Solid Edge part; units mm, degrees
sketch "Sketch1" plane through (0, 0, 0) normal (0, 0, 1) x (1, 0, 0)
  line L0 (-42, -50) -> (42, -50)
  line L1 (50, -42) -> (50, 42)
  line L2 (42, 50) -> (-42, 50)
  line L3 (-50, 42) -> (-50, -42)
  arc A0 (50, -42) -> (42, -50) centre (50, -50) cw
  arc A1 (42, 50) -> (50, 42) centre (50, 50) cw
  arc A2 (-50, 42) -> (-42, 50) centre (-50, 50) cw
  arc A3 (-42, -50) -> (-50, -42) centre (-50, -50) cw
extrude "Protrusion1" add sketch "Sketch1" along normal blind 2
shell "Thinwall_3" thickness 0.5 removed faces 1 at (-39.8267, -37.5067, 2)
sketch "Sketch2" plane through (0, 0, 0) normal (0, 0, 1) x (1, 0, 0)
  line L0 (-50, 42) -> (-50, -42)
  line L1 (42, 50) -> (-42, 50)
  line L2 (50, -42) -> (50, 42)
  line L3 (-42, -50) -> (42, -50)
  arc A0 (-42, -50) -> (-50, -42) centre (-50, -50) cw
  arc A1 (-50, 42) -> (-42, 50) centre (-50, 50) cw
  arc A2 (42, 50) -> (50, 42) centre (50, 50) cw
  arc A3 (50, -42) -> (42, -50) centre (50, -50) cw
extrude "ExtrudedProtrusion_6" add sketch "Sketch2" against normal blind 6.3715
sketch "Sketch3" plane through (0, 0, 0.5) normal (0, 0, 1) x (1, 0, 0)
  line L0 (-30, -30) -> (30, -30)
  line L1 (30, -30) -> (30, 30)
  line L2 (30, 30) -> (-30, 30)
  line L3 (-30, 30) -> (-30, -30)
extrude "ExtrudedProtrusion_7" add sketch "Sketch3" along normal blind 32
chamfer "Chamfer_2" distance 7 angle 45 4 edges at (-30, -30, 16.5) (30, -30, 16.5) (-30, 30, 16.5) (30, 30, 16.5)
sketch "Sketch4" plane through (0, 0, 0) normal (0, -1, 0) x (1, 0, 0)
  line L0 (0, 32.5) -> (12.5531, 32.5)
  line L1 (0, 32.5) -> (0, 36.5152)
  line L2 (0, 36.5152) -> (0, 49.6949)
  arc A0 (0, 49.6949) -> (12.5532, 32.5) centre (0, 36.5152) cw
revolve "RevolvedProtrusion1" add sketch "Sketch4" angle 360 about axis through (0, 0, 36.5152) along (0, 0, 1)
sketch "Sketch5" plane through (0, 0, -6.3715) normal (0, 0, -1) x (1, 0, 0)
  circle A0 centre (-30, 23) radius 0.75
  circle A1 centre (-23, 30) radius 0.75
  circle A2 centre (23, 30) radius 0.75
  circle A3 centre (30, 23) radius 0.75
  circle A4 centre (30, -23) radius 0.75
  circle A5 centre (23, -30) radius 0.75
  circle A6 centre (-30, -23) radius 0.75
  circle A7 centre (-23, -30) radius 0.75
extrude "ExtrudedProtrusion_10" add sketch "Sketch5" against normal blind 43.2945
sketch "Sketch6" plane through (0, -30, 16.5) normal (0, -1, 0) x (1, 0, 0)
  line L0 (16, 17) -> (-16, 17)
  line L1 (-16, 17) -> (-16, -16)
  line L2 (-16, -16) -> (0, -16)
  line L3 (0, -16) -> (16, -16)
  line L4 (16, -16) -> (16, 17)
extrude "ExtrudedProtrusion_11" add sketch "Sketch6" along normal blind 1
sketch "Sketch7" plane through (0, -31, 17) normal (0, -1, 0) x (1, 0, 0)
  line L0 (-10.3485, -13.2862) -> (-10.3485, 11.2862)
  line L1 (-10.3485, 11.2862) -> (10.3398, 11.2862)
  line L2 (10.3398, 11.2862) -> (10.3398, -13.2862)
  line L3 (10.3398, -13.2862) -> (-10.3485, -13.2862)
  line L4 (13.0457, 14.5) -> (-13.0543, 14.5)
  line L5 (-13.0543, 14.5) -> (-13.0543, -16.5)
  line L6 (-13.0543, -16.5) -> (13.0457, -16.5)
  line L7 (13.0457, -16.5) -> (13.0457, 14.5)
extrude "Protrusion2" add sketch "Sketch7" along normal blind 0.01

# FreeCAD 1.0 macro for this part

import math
import FreeCAD as App
import Part
import Sketcher

V = App.Vector


def edges_at(feature, points):
    """Names of the edges that pass closest to the given points."""
    edges = feature.Shape.Edges
    near = lambda p: min(range(len(edges)), key=lambda i: edges[i].distToShape(Part.Vertex(*p))[0])
    return sorted({f"Edge{near(p) + 1}" for p in points})


def faces_at(feature, points):
    """Names of the faces that lie closest to the given points."""
    faces = feature.Shape.Faces
    near = lambda p: min(range(len(faces)), key=lambda i: faces[i].distToShape(Part.Vertex(*p))[0])
    return sorted({f"Face{near(p) + 1}" for p in points})


def add_polygon(sketch, points):
    """Adds a closed chain of lines whose ends are joined by coincident constraints."""
    first, n = sketch.GeometryCount, len(points)
    for a, b in zip(points, points[1:] + points[:1]):
        sketch.addGeometry(Part.LineSegment(App.Vector(*a, 0), App.Vector(*b, 0)), False)
    for i in range(n):
        sketch.addConstraint(Sketcher.Constraint("Coincident", first + i, 2, first + (i + 1) % n, 1))

doc = App.newDocument("Part")
body = doc.addObject("PartDesign::Body", "Body")

sketch1 = doc.addObject("Sketcher::SketchObject", "Sketch")
body.addObject(sketch1)
sketch1.AttachmentSupport = (doc.XY_Plane, [""])
sketch1.MapMode = "FlatFace"
sketch1.addGeometry([
    Part.ArcOfCircle(Part.Circle(V(-50, -50, 0), V(0, 0, 1), 8), math.radians(90), math.radians(360)),
    Part.LineSegment(V(-42, -50, 0), V(42, -50, 0)),
    Part.ArcOfCircle(Part.Circle(V(50, -50, 0), V(0, 0, 1), 8), math.radians(180), math.radians(450)),
    Part.LineSegment(V(50, -42, 0), V(50, 42, 0)),
    Part.ArcOfCircle(Part.Circle(V(50, 50, 0), V(0, 0, 1), 8), math.radians(-90), math.radians(180)),
    Part.LineSegment(V(42, 50, 0), V(-42, 50, 0)),
    Part.ArcOfCircle(Part.Circle(V(-50, 50, 0), V(0, 0, 1), 8), math.radians(0), math.radians(270)),
    Part.LineSegment(V(-50, 42, 0), V(-50, -42, 0)),
], False)
sketch1.addConstraint([
    Sketcher.Constraint("Coincident", 0, 2, 1, 1),
    Sketcher.Constraint("Coincident", 1, 2, 2, 1),
    Sketcher.Constraint("Coincident", 2, 2, 3, 1),
    Sketcher.Constraint("Coincident", 3, 2, 4, 1),
    Sketcher.Constraint("Coincident", 4, 2, 5, 1),
    Sketcher.Constraint("Coincident", 5, 2, 6, 1),
    Sketcher.Constraint("Coincident", 6, 2, 7, 1),
    Sketcher.Constraint("Coincident", 7, 2, 0, 1),
    Sketcher.Constraint("Horizontal", 1),
    Sketcher.Constraint("Vertical", 3),
    Sketcher.Constraint("Horizontal", 5),
    Sketcher.Constraint("Vertical", 7),
    Sketcher.Constraint("Equal", 0, 2),
    Sketcher.Constraint("Equal", 2, 4),
    Sketcher.Constraint("Equal", 4, 6),
    Sketcher.Constraint("Symmetric", 0, 3, 4, 3, -1, 1),
    Sketcher.Constraint("Symmetric", 2, 3, 6, 3, -1, 1),
    Sketcher.Constraint("Symmetric", 0, 3, 2, 3, -2),
    Sketcher.Constraint("Horizontal", 2, 3, 0, 2),
    Sketcher.Constraint("Horizontal", 6, 3, 4, 2),
    Sketcher.Constraint("Vertical", 4, 3, 2, 2),
    Sketcher.Constraint("Vertical", 0, 3, 6, 2),
    Sketcher.Constraint("Equal", 5, 3),
    Sketcher.Constraint("Radius", 0, 8.0),
    Sketcher.Constraint("DistanceX", 1, 1, 1, 2, 84.0),
])
pad1 = doc.addObject("PartDesign::Pad", "Pad")
body.addObject(pad1)
pad1.Profile = sketch1
pad1.Length = 2
doc.recompute()

thickness = doc.addObject("PartDesign::Thickness", "Thickness")
body.addObject(thickness)
thickness.Base = (pad1, faces_at(pad1, [(-39.827, -37.507, 2)]))
thickness.Value = 0.5
thickness.Reversed = True
thickness.Join = "Intersection"

sketch2 = doc.addObject("Sketcher::SketchObject", "Sketch001")
body.addObject(sketch2)
sketch2.AttachmentSupport = (doc.XY_Plane, [""])
sketch2.MapMode = "FlatFace"
sketch2.addGeometry([
    Part.ArcOfCircle(Part.Circle(V(-50, 50, 0), V(0, 0, 1), 8), math.radians(0), math.radians(270)),
    Part.LineSegment(V(-50, 42, 0), V(-50, -42, 0)),
    Part.ArcOfCircle(Part.Circle(V(-50, -50, 0), V(0, 0, 1), 8), math.radians(90), math.radians(360)),
    Part.LineSegment(V(-42, -50, 0), V(42, -50, 0)),
    Part.ArcOfCircle(Part.Circle(V(50, -50, 0), V(0, 0, 1), 8), math.radians(180), math.radians(450)),
    Part.LineSegment(V(50, -42, 0), V(50, 42, 0)),
    Part.ArcOfCircle(Part.Circle(V(50, 50, 0), V(0, 0, 1), 8), math.radians(-90), math.radians(180)),
    Part.LineSegment(V(42, 50, 0), V(-42, 50, 0)),
], False)
sketch2.addConstraint([
    Sketcher.Constraint("Coincident", 0, 2, 1, 1),
    Sketcher.Constraint("Coincident", 1, 2, 2, 1),
    Sketcher.Constraint("Coincident", 2, 2, 3, 1),
    Sketcher.Constraint("Coincident", 3, 2, 4, 1),
    Sketcher.Constraint("Coincident", 4, 2, 5, 1),
    Sketcher.Constraint("Coincident", 5, 2, 6, 1),
    Sketcher.Constraint("Coincident", 6, 2, 7, 1),
    Sketcher.Constraint("Coincident", 7, 2, 0, 1),
    Sketcher.Constraint("Vertical", 1),
    Sketcher.Constraint("Horizontal", 3),
    Sketcher.Constraint("Vertical", 5),
    Sketcher.Constraint("Horizontal", 7),
    Sketcher.Constraint("Equal", 0, 2),
    Sketcher.Constraint("Equal", 2, 4),
    Sketcher.Constraint("Equal", 4, 6),
    Sketcher.Constraint("Symmetric", 0, 3, 4, 3, -1, 1),
    Sketcher.Constraint("Symmetric", 2, 3, 6, 3, -1, 1),
    Sketcher.Constraint("Symmetric", 2, 3, 4, 3, -2),
    Sketcher.Constraint("Horizontal", 4, 3, 2, 2),
    Sketcher.Constraint("Horizontal", 0, 3, 6, 2),
    Sketcher.Constraint("Vertical", 2, 3, 0, 2),
    Sketcher.Constraint("Vertical", 6, 3, 4, 2),
    Sketcher.Constraint("Equal", 7, 1),
    Sketcher.Constraint("Radius", 0, 8.0),
    Sketcher.Constraint("DistanceX", 3, 1, 3, 2, 84.0),
])
pad2 = doc.addObject("PartDesign::Pad", "Pad001")
body.addObject(pad2)
pad2.Profile = sketch2
pad2.Length = 6.3715
pad2.Reversed = True

sketch3 = doc.addObject("Sketcher::SketchObject", "Sketch002")
body.addObject(sketch3)
sketch3.AttachmentSupport = (doc.XY_Plane, [""])
sketch3.MapMode = "FlatFace"
sketch3.AttachmentOffset = App.Placement(V(0, 0, 0.5), App.Rotation())
add_polygon(sketch3, [(-30, 30), (-30, -30), (30, -30), (30, 30)])
sketch3.addConstraint([
    Sketcher.Constraint("Vertical", 0),
    Sketcher.Constraint("Horizontal", 1),
    Sketcher.Constraint("Vertical", 2),
    Sketcher.Constraint("Horizontal", 3),
    Sketcher.Constraint("Symmetric", 0, 2, 2, 2, -1, 1),
    Sketcher.Constraint("Equal", 3, 0),
    Sketcher.Constraint("DistanceX", 1, 1, 1, 2, 60.0),
])
pad3 = doc.addObject("PartDesign::Pad", "Pad002")
body.addObject(pad3)
pad3.Profile = sketch3
pad3.Length = 32
doc.recompute()

chamfer = doc.addObject("PartDesign::Chamfer", "Chamfer")
body.addObject(chamfer)
chamfer.Base = (pad3, edges_at(pad3, [
    (-30, -30, 16.5),
    (30, -30, 16.5),
    (-30, 30, 16.5),
    (30, 30, 16.5),
]))
chamfer.Size = 7

sketch4 = doc.addObject("Sketcher::SketchObject", "Sketch003")
body.addObject(sketch4)
sketch4.AttachmentSupport = (doc.XZ_Plane, [""])
sketch4.MapMode = "FlatFace"
sketch4.addGeometry([
    Part.LineSegment(V(0, 50, 0), V(0, 32, 0)),
    Part.LineSegment(V(0, 32, 0), V(13, 32, 0)),
    Part.ArcOfCircle(Part.Circle(V(0, 37, 0), V(0, 0, 1), 13), math.radians(-18), math.radians(90)),
], False)
sketch4.addConstraint([
    Sketcher.Constraint("Coincident", 0, 2, 1, 1),
    Sketcher.Constraint("Coincident", 1, 2, 2, 1),
    Sketcher.Constraint("Coincident", 2, 2, 0, 1),
    Sketcher.Constraint("Vertical", 0),
    Sketcher.Constraint("Horizontal", 1),
    Sketcher.Constraint("PointOnObject", 2, 3, -2),
    Sketcher.Constraint("PointOnObject", 0, 2, -2),
    Sketcher.Constraint("DistanceY", -1, 1, 0, 2, 32.5),
    Sketcher.Constraint("Radius", 2, 13.1797),
    Sketcher.Constraint("DistanceX", 1, 1, 1, 2, 12.553),
])
revolution = doc.addObject("PartDesign::Revolution", "Revolution")
body.addObject(revolution)
revolution.Profile = sketch4
revolution.ReferenceAxis = (sketch4, ["V_Axis"])
revolution.Angle = 360

sketch5 = doc.addObject("Sketcher::SketchObject", "Sketch004")
body.addObject(sketch5)
sketch5.AttachmentSupport = (doc.XY_Plane, [""])
sketch5.MapMode = "FlatFace"
sketch5.AttachmentOffset = App.Placement(V(0, 0, -6.3715), App.Rotation())
sketch5.addGeometry([
    Part.Circle(V(-30, -23, 0), V(0, 0, 1), 0.8),
    Part.Circle(V(-23, -30, 0), V(0, 0, 1), 0.8),
    Part.Circle(V(23, -30, 0), V(0, 0, 1), 0.8),
    Part.Circle(V(30, -23, 0), V(0, 0, 1), 0.8),
    Part.Circle(V(30, 23, 0), V(0, 0, 1), 0.8),
    Part.Circle(V(23, 30, 0), V(0, 0, 1), 0.8),
    Part.Circle(V(-30, 23, 0), V(0, 0, 1), 0.8),
    Part.Circle(V(-23, 30, 0), V(0, 0, 1), 0.8),
], False)
sketch5.addConstraint([
    Sketcher.Constraint("Equal", 0, 1),
    Sketcher.Constraint("Equal", 1, 2),
    Sketcher.Constraint("Equal", 2, 3),
    Sketcher.Constraint("Equal", 3, 4),
    Sketcher.Constraint("Equal", 4, 5),
    Sketcher.Constraint("Equal", 5, 6),
    Sketcher.Constraint("Equal", 6, 7),
    Sketcher.Constraint("Symmetric", 0, 3, 4, 3, -1, 1),
    Sketcher.Constraint("Symmetric", 1, 3, 5, 3, -1, 1),
    Sketcher.Constraint("Symmetric", 3, 3, 6, 3, -1, 1),
    Sketcher.Constraint("Symmetric", 2, 3, 7, 3, -1, 1),
    Sketcher.Constraint("Symmetric", 1, 3, 2, 3, -2),
    Sketcher.Constraint("Symmetric", 0, 3, 3, 3, -2),
    Sketcher.Constraint("Diameter", 0, 1.5),
    Sketcher.Constraint("DistanceX", 0, 3, -1, 1, 30.0),
    Sketcher.Constraint("DistanceY", 0, 3, -1, 1, 23.0),
    Sketcher.Constraint("DistanceX", 1, 3, -1, 1, 23.0),
    Sketcher.Constraint("DistanceY", 1, 3, -1, 1, 30.0),
])
pad4 = doc.addObject("PartDesign::Pad", "Pad003")
body.addObject(pad4)
pad4.Profile = sketch5
pad4.Length = 43.2945

sketch6 = doc.addObject("Sketcher::SketchObject", "Sketch005")
body.addObject(sketch6)
sketch6.AttachmentSupport = (doc.XZ_Plane, [""])
sketch6.MapMode = "FlatFace"
sketch6.AttachmentOffset = App.Placement(V(0, 0, 30), App.Rotation())
add_polygon(sketch6, [(16, 0), (16, 34), (-16, 34), (-16, 0)])
sketch6.addConstraint([
    Sketcher.Constraint("Vertical", 0),
    Sketcher.Constraint("Horizontal", 1),
    Sketcher.Constraint("Vertical", 2),
    Sketcher.Constraint("Horizontal", 3),
    Sketcher.Constraint("DistanceX", 1, 2, 1, 1, 32.0),
    Sketcher.Constraint("DistanceY", 0, 1, 0, 2, 33.0),
    Sketcher.Constraint("DistanceX", -1, 1, 0, 2, 16.0),
    Sketcher.Constraint("DistanceY", -1, 1, 0, 2, 33.5),
])
pad5 = doc.addObject("PartDesign::Pad", "Pad004")
body.addObject(pad5)
pad5.Profile = sketch6
pad5.Length = 1

sketch7 = doc.addObject("Sketcher::SketchObject", "Sketch006")
body.addObject(sketch7)
sketch7.AttachmentSupport = (doc.XZ_Plane, [""])
sketch7.MapMode = "FlatFace"
sketch7.AttachmentOffset = App.Placement(V(0, 0, 31), App.Rotation())
add_polygon(sketch7, [(13, 0), (13, 32), (-13, 32), (-13, 0)])
add_polygon(sketch7, [(10, 4), (-10, 4), (-10, 28), (10, 28)])
sketch7.addConstraint([
    Sketcher.Constraint("Vertical", 0),
    Sketcher.Constraint("Horizontal", 1),
    Sketcher.Constraint("Vertical", 2),
    Sketcher.Constraint("Horizontal", 3),
    Sketcher.Constraint("Horizontal", 4),
    Sketcher.Constraint("Vertical", 5),
    Sketcher.Constraint("Horizontal", 6),
    Sketcher.Constraint("Vertical", 7),
    Sketcher.Constraint("DistanceY", 0, 1, 0, 2, 31.0),
    Sketcher.Constraint("DistanceX", 1, 2, 1, 1, 26.1),
    Sketcher.Constraint("DistanceY", -1, 1, 0, 2, 31.5),
    Sketcher.Constraint("DistanceX", 4, 2, 4, 1, 20.6883),
    Sketcher.Constraint("DistanceY", 5, 1, 5, 2, 24.5724),
    Sketcher.Constraint("DistanceX", 6, 2, 0, 2, 2.706),
    Sketcher.Constraint("DistanceX", -1, 1, 0, 2, 13.0457),
    Sketcher.Constraint("DistanceY", -1, 1, 4, 2, 3.7138),
])
pad6 = doc.addObject("PartDesign::Pad", "Pad005")
body.addObject(pad6)
pad6.Profile = sketch7
pad6.Length = 0.01

doc.recompute()
